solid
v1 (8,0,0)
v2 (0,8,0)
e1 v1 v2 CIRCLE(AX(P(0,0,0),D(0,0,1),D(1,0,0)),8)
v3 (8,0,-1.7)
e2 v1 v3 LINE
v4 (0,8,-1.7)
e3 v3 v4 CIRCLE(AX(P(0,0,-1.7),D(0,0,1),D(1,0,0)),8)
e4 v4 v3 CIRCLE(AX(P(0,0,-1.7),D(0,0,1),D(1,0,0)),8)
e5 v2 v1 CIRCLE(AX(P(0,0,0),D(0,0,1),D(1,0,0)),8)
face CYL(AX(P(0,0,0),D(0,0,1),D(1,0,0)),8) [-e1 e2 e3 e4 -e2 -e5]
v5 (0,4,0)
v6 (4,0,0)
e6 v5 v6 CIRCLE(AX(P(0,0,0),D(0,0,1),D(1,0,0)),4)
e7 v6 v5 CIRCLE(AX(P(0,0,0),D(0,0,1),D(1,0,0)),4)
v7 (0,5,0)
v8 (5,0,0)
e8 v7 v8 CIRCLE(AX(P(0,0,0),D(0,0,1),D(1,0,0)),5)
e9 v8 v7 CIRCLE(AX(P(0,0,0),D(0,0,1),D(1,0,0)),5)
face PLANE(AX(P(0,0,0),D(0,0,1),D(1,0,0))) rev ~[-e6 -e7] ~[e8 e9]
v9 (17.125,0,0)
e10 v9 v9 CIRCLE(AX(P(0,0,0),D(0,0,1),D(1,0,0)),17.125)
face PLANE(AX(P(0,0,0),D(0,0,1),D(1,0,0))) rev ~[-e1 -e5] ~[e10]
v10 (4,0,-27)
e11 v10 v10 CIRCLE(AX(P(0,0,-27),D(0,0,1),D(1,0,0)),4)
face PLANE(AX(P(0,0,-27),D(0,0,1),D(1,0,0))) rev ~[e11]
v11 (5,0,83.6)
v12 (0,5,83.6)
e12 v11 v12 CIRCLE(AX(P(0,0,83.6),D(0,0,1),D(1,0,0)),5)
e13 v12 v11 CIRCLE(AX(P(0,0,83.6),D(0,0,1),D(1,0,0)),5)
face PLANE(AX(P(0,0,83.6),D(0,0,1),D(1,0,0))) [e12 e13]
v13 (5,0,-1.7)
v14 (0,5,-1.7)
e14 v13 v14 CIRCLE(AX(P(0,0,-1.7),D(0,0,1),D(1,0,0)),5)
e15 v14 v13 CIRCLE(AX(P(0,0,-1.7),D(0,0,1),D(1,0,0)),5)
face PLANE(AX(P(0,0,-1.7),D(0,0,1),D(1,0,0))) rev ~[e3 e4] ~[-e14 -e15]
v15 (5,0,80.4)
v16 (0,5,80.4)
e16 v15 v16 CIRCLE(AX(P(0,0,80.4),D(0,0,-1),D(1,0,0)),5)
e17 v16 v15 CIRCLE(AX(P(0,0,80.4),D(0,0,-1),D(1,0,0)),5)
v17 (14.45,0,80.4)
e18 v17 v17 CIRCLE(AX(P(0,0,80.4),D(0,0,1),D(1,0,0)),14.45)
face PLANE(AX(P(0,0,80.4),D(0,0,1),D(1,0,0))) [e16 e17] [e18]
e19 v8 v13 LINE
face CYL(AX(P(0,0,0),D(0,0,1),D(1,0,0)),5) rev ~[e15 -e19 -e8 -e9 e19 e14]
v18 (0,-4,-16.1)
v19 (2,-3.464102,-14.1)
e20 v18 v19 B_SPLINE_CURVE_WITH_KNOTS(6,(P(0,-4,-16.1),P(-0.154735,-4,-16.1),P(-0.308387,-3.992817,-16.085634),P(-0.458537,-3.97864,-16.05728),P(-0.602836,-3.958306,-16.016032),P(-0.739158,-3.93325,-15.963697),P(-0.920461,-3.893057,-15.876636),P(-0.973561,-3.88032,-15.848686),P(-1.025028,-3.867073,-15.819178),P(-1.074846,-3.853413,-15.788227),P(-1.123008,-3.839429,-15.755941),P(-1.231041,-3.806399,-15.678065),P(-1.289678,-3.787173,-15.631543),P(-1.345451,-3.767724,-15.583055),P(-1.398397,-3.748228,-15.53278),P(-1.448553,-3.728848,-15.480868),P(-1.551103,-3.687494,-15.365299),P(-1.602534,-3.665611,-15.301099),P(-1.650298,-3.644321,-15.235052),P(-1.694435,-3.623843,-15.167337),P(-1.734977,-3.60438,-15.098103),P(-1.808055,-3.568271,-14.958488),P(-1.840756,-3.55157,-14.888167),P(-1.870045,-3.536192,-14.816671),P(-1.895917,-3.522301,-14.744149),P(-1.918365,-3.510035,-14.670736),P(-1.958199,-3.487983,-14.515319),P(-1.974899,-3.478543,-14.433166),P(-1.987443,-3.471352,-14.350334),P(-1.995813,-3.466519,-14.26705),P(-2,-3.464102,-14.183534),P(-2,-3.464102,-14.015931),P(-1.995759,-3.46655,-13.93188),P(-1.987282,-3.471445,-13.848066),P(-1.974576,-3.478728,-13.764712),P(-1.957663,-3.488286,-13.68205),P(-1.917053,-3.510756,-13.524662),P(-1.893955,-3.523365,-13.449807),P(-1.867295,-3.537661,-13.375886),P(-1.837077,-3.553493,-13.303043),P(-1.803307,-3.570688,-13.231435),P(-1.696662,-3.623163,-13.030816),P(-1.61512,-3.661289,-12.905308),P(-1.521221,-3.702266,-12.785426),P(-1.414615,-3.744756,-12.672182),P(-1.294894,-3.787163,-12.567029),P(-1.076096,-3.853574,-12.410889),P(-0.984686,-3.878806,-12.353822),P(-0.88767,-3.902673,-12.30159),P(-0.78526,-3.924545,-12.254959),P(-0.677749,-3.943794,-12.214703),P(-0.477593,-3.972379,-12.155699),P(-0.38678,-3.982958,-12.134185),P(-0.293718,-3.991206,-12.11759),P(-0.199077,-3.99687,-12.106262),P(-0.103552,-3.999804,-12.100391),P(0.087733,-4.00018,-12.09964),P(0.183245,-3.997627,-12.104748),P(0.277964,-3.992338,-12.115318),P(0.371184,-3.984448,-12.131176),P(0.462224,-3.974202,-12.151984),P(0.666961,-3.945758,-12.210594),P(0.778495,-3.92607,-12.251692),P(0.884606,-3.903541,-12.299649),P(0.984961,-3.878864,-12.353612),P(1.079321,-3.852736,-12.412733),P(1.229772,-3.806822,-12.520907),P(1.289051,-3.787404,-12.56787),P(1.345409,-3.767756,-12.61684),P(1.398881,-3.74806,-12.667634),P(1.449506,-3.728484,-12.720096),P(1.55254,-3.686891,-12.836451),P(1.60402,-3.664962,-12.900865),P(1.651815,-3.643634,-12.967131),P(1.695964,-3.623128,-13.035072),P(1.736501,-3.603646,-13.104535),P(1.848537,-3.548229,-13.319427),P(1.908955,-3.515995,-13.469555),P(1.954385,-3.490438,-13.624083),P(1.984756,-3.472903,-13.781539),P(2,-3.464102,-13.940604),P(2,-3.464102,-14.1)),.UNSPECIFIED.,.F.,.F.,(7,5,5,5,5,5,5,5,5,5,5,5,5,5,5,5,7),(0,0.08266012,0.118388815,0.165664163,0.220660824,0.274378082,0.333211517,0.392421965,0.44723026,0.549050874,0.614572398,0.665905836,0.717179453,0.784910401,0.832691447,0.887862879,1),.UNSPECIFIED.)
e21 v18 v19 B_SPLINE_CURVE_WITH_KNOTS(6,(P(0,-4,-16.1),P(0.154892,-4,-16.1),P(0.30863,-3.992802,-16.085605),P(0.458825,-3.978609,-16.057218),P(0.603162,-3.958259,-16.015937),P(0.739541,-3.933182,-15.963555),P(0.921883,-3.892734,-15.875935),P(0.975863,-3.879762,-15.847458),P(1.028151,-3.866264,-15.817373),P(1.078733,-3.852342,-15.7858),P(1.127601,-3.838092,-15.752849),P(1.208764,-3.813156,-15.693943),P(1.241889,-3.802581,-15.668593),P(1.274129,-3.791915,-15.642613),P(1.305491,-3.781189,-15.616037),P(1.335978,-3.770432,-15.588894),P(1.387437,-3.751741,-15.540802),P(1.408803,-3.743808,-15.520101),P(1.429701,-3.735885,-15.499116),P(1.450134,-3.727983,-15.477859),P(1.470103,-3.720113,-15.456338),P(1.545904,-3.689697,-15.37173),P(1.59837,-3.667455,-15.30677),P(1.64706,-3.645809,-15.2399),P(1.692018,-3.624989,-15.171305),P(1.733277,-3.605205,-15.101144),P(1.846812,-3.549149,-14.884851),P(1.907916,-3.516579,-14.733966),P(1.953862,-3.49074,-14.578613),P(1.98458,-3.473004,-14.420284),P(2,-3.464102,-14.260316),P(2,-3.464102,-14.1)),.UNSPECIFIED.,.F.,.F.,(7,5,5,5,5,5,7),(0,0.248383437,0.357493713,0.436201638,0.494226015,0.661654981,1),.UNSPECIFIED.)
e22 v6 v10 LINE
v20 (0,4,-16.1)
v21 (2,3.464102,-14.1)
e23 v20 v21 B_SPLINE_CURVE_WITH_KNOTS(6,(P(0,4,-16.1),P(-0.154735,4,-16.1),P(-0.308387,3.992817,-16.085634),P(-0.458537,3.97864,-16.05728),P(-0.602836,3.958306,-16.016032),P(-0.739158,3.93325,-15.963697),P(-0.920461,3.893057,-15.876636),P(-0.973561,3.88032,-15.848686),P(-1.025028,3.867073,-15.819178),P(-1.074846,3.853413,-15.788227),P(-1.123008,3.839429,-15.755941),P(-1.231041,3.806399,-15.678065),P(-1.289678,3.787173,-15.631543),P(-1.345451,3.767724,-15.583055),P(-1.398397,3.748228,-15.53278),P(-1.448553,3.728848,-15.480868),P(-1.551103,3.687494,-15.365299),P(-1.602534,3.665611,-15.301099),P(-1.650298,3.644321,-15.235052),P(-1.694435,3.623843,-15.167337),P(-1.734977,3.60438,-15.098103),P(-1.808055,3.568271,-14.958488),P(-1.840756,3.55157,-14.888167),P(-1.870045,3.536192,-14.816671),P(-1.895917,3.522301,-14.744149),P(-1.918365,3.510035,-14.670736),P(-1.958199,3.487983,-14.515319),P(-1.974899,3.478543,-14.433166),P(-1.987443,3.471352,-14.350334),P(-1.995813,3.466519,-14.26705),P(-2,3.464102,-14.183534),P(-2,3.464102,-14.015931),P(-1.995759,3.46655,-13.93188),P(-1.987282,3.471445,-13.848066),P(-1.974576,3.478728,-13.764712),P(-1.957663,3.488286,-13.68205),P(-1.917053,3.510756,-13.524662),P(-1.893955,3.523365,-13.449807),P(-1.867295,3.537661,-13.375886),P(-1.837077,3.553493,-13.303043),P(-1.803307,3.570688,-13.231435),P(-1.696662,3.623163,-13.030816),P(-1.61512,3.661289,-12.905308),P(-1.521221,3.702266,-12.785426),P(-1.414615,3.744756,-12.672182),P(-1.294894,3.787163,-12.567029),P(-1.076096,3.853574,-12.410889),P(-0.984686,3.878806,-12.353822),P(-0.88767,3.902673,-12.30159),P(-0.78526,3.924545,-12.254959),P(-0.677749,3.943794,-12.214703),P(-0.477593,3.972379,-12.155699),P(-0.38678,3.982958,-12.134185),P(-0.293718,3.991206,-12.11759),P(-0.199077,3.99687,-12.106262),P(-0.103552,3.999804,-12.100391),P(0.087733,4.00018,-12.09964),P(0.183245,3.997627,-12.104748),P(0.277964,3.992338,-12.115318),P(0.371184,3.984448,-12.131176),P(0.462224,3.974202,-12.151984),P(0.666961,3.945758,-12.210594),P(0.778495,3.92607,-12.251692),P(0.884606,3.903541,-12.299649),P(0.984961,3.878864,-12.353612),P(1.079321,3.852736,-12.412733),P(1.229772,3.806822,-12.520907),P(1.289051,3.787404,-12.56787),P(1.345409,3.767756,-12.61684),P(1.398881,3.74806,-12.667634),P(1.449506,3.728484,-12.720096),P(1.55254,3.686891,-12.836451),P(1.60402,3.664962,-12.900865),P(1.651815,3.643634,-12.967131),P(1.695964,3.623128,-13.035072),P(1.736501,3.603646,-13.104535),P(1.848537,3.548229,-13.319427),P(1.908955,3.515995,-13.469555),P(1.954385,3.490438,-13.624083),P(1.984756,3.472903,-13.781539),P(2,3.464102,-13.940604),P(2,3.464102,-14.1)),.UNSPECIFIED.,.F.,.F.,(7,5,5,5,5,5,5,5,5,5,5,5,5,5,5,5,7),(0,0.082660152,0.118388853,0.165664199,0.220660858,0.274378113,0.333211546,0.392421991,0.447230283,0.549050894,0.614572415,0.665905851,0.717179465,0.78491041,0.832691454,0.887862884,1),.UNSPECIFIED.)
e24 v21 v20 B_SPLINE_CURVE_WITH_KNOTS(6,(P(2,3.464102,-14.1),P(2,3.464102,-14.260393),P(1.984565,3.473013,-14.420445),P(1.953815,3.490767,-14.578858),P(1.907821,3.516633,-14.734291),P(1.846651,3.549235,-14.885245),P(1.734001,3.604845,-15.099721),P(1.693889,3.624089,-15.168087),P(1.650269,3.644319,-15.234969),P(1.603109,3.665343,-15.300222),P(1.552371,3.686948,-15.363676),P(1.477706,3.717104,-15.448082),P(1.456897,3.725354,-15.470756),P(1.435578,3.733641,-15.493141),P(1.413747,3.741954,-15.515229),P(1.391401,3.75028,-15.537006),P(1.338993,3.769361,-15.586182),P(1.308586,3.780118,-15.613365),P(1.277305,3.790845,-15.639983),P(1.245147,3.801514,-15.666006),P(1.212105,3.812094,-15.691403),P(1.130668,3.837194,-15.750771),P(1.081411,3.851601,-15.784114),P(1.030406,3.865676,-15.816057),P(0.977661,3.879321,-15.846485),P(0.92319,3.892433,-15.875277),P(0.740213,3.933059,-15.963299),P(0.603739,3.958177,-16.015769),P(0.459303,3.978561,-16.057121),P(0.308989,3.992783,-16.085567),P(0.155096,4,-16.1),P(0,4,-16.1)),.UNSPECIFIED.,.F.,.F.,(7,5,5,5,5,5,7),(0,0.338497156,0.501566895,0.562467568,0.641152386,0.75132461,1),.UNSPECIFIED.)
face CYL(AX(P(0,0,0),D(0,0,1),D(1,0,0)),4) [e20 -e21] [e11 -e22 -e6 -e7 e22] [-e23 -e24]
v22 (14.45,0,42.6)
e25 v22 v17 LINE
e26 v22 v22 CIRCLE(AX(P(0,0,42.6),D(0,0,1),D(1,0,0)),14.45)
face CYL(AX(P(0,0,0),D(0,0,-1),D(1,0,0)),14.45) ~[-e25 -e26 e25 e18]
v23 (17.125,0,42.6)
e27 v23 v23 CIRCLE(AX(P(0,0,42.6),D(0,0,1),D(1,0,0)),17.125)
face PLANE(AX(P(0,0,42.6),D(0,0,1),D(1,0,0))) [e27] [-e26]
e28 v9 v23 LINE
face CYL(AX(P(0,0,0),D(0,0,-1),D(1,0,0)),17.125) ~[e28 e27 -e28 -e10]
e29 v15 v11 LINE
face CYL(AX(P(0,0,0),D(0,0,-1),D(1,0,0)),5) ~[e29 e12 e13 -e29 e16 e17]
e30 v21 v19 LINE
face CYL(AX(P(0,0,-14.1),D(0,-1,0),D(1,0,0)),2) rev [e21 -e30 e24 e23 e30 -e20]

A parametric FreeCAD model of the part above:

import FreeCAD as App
import Part
import Sketcher

V = App.Vector

doc = App.newDocument("Part")
params = doc.addObject("Spreadsheet::Sheet", "Params")
for row, (alias, value) in enumerate([
    ("sketch1_diameter", "28.9 mm"),
    ("pad1_length", "80.4 mm"),
    ("sketch2_diameter", "28.9 mm"),
    ("sketch2_diameter2", "34.25 mm"),
    ("pad2_length", "42.6 mm"),
    ("sketch3_diameter", "10 mm"),
    ("pad3_length", "83.6 mm"),
    ("sketch4_diameter", "8 mm"),
    ("pad4_length", "27 mm"),
    ("sketch5_diameter", "16 mm"),
    ("sketch5_diameter2", "10 mm"),
    ("pad5_length", "1.7 mm"),
    ("sketch6_diameter", "4 mm"),
    ("pocket1_length", "14 mm"),
], start=1):
    params.set(f"A{row}", alias)
    params.set(f"B{row}", "=" + value)
    params.setAlias(f"B{row}", alias)

body = doc.addObject("PartDesign::Body", "Body")

sketch1 = body.newObject("Sketcher::SketchObject", "Sketch")
sketch1.AttachmentSupport = (doc.getObject("XY_Plane"), [""])
sketch1.MapMode = "FlatFace"
sketch1.addGeometry(Part.Circle(V(0, 0, 0), V(0, 0, 1), 14), False)
sketch1.addConstraint([
    Sketcher.Constraint("Coincident", 0, 3, -1, 1),
    Sketcher.Constraint("Diameter", 0, 28.9),
])
sketch1.setExpression("Constraints[1]", "Params.sketch1_diameter")
pad1 = body.newObject("PartDesign::Pad", "Pad")
pad1.Profile = sketch1
pad1.setExpression("Length", "Params.pad1_length")

sketch2 = body.newObject("Sketcher::SketchObject", "Sketch001")
sketch2.AttachmentSupport = (doc.getObject("XY_Plane"), [""])
sketch2.MapMode = "FlatFace"
sketch2.addGeometry([
    Part.Circle(V(0, 0, 0), V(0, 0, 1), 17),
    Part.Circle(V(0, 0, 0), V(0, 0, 1), 14),
], False)
sketch2.addConstraint([
    Sketcher.Constraint("Coincident", 0, 3, -1, 1),
    Sketcher.Constraint("Coincident", 1, 3, -1, 1),
    Sketcher.Constraint("Diameter", 1, 28.9),
    Sketcher.Constraint("Diameter", 0, 34.25),
])
sketch2.setExpression("Constraints[2]", "Params.sketch2_diameter")
sketch2.setExpression("Constraints[3]", "Params.sketch2_diameter2")
pad2 = body.newObject("PartDesign::Pad", "Pad001")
pad2.Profile = sketch2
pad2.setExpression("Length", "Params.pad2_length")

sketch3 = body.newObject("Sketcher::SketchObject", "Sketch002")
sketch3.AttachmentSupport = (doc.getObject("XY_Plane"), [""])
sketch3.MapMode = "FlatFace"
sketch3.addGeometry(Part.Circle(V(0, 0, 0), V(0, 0, 1), 5), False)
sketch3.addConstraint([
    Sketcher.Constraint("Coincident", 0, 3, -1, 1),
    Sketcher.Constraint("Diameter", 0, 10.0),
])
sketch3.setExpression("Constraints[1]", "Params.sketch3_diameter")
pad3 = body.newObject("PartDesign::Pad", "Pad002")
pad3.Profile = sketch3
pad3.setExpression("Length", "Params.pad3_length")

sketch4 = body.newObject("Sketcher::SketchObject", "Sketch003")
sketch4.AttachmentSupport = (doc.getObject("XY_Plane"), [""])
sketch4.MapMode = "FlatFace"
sketch4.addGeometry(Part.Circle(V(0, 0, 0), V(0, 0, 1), 4), False)
sketch4.addConstraint([
    Sketcher.Constraint("Coincident", 0, 3, -1, 1),
    Sketcher.Constraint("Diameter", 0, 8.0),
])
sketch4.setExpression("Constraints[1]", "Params.sketch4_diameter")
pad4 = body.newObject("PartDesign::Pad", "Pad003")
pad4.Profile = sketch4
pad4.setExpression("Length", "Params.pad4_length")
pad4.Reversed = True

sketch5 = body.newObject("Sketcher::SketchObject", "Sketch004")
sketch5.AttachmentSupport = (doc.getObject("XY_Plane"), [""])
sketch5.MapMode = "FlatFace"
sketch5.addGeometry([
    Part.Circle(V(0, 0, 0), V(0, 0, 1), 8),
    Part.Circle(V(0, 0, 0), V(0, 0, 1), 5),
], False)
sketch5.addConstraint([
    Sketcher.Constraint("Coincident", 0, 3, -1, 1),
    Sketcher.Constraint("Coincident", 1, 3, -1, 1),
    Sketcher.Constraint("Diameter", 0, 16.0),
    Sketcher.Constraint("Diameter", 1, 10.0),
])
sketch5.setExpression("Constraints[2]", "Params.sketch5_diameter")
sketch5.setExpression("Constraints[3]", "Params.sketch5_diameter2")
pad5 = body.newObject("PartDesign::Pad", "Pad004")
pad5.Profile = sketch5
pad5.setExpression("Length", "Params.pad5_length")
pad5.Reversed = True

sketch6 = body.newObject("Sketcher::SketchObject", "Sketch005")
sketch6.AttachmentSupport = (doc.getObject("XZ_Plane"), [""])
sketch6.MapMode = "FlatFace"
sketch6.addGeometry(Part.Circle(V(0, -14.1, 0), V(0, 0, 1), 2), False)
sketch6.addConstraint([
    Sketcher.Constraint("PointOnObject", 0, 3, -2),
    Sketcher.Constraint("Diameter", 0, 4.0),
    Sketcher.Constraint("DistanceY", 0, 3, -1, 1, 14.1),
])
sketch6.setExpression("Constraints[1]", "Params.sketch6_diameter")
pocket1 = body.newObject("PartDesign::Pocket", "Pocket")
pocket1.Profile = sketch6
pocket1.setExpression("Length", "Params.pocket1_length")
pocket1.Midplane = True

doc.recompute()
